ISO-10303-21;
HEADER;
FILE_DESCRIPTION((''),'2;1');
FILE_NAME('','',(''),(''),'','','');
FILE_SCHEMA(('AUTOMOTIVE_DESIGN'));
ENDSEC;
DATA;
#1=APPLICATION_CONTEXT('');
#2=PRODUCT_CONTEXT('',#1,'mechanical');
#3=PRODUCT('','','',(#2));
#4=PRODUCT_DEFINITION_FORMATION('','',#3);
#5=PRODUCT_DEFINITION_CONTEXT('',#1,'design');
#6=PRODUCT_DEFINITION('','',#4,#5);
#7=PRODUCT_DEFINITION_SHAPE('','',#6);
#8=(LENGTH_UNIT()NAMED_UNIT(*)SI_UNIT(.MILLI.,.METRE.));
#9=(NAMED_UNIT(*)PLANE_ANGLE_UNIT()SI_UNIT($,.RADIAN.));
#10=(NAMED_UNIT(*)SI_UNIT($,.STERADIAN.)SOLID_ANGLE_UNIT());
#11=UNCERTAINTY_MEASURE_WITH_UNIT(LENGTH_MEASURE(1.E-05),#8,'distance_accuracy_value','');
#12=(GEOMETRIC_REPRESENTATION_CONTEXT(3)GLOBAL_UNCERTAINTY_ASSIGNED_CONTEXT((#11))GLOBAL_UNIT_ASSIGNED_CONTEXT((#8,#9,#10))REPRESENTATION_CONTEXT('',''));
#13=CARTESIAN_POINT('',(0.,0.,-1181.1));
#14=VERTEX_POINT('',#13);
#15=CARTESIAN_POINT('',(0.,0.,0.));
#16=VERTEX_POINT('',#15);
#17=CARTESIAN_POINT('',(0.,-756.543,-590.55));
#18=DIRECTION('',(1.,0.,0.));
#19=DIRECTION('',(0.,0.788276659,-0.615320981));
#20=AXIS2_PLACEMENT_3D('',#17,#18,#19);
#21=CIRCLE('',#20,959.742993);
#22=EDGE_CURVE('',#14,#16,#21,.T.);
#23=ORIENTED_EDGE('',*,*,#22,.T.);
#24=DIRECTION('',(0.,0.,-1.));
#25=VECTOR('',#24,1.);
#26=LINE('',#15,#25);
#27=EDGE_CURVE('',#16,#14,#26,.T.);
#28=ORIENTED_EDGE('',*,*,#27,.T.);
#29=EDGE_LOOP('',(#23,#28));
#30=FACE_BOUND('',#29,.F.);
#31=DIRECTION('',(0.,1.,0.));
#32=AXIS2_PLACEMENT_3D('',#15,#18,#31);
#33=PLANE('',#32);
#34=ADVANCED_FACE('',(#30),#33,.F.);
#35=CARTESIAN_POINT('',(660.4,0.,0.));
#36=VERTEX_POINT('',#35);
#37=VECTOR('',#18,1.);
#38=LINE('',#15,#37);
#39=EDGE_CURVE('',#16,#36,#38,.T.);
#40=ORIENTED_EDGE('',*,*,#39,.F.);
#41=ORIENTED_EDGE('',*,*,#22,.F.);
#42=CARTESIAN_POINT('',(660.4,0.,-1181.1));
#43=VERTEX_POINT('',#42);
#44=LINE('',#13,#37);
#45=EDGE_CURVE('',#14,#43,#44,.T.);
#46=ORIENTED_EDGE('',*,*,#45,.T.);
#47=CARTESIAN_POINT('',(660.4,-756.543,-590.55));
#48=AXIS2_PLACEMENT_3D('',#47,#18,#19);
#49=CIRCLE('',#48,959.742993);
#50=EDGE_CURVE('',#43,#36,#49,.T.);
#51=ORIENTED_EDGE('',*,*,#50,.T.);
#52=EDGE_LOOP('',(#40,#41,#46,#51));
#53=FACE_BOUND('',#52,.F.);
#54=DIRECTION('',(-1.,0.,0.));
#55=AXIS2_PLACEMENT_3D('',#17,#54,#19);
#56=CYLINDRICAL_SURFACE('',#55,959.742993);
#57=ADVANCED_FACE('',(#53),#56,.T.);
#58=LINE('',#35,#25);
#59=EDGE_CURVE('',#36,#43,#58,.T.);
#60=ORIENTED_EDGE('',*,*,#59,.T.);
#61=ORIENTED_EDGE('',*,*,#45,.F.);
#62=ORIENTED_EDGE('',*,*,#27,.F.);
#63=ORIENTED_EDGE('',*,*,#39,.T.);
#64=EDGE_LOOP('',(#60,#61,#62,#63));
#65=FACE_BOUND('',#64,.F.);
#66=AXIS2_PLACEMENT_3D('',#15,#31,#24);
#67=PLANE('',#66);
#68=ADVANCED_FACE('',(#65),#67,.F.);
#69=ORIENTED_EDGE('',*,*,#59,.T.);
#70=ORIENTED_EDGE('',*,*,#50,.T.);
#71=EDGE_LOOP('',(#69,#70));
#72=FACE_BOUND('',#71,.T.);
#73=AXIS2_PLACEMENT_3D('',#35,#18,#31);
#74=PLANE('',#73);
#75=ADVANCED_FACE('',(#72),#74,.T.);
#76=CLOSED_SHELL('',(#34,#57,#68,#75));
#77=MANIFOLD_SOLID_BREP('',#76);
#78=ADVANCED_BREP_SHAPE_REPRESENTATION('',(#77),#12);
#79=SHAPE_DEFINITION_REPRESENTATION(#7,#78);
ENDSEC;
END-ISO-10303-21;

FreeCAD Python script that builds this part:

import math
import FreeCAD as App
import Part
import Sketcher
Q = App.Units.Quantity

doc = App.newDocument("Part")
body = doc.addObject("PartDesign::Body", "Body")

# Sketch on YZ plane
sketch1 = body.newObject("Sketcher::SketchObject", "Sketch")
sketch1.AttachmentSupport = (doc.getObject("YZ_Plane"), [""])
sketch1.MapMode = "FlatFace"
sketch1.addGeometry([
    Part.ArcOfCircle(Part.Circle(App.Vector(-756.543, -590.55, 0), App.Vector(0, 0, 1), 959.742993), math.radians(-37.975247), math.radians(37.975247)),
    Part.LineSegment(App.Vector(0, 0, 0), App.Vector(0, -1181.1, 0)),
], False)
sketch1.addConstraint([
    Sketcher.Constraint("Coincident", 0, 1, 1, 2),
    Sketcher.Constraint("Coincident", 1, 1, 0, 2),
    Sketcher.Constraint("Vertical", 1),
    Sketcher.Constraint("Coincident", 1, 1, -1, 1),
    Sketcher.Constraint("DistanceY", 1, 2, 1, 1, Q("46.5 in")),
    Sketcher.Constraint("Radius", 0, Q("959.743 mm")),
])
pad1 = body.newObject("PartDesign::Pad", "Pad")
pad1.Profile = sketch1
pad1.Length = Q("26 in")

doc.recompute()
